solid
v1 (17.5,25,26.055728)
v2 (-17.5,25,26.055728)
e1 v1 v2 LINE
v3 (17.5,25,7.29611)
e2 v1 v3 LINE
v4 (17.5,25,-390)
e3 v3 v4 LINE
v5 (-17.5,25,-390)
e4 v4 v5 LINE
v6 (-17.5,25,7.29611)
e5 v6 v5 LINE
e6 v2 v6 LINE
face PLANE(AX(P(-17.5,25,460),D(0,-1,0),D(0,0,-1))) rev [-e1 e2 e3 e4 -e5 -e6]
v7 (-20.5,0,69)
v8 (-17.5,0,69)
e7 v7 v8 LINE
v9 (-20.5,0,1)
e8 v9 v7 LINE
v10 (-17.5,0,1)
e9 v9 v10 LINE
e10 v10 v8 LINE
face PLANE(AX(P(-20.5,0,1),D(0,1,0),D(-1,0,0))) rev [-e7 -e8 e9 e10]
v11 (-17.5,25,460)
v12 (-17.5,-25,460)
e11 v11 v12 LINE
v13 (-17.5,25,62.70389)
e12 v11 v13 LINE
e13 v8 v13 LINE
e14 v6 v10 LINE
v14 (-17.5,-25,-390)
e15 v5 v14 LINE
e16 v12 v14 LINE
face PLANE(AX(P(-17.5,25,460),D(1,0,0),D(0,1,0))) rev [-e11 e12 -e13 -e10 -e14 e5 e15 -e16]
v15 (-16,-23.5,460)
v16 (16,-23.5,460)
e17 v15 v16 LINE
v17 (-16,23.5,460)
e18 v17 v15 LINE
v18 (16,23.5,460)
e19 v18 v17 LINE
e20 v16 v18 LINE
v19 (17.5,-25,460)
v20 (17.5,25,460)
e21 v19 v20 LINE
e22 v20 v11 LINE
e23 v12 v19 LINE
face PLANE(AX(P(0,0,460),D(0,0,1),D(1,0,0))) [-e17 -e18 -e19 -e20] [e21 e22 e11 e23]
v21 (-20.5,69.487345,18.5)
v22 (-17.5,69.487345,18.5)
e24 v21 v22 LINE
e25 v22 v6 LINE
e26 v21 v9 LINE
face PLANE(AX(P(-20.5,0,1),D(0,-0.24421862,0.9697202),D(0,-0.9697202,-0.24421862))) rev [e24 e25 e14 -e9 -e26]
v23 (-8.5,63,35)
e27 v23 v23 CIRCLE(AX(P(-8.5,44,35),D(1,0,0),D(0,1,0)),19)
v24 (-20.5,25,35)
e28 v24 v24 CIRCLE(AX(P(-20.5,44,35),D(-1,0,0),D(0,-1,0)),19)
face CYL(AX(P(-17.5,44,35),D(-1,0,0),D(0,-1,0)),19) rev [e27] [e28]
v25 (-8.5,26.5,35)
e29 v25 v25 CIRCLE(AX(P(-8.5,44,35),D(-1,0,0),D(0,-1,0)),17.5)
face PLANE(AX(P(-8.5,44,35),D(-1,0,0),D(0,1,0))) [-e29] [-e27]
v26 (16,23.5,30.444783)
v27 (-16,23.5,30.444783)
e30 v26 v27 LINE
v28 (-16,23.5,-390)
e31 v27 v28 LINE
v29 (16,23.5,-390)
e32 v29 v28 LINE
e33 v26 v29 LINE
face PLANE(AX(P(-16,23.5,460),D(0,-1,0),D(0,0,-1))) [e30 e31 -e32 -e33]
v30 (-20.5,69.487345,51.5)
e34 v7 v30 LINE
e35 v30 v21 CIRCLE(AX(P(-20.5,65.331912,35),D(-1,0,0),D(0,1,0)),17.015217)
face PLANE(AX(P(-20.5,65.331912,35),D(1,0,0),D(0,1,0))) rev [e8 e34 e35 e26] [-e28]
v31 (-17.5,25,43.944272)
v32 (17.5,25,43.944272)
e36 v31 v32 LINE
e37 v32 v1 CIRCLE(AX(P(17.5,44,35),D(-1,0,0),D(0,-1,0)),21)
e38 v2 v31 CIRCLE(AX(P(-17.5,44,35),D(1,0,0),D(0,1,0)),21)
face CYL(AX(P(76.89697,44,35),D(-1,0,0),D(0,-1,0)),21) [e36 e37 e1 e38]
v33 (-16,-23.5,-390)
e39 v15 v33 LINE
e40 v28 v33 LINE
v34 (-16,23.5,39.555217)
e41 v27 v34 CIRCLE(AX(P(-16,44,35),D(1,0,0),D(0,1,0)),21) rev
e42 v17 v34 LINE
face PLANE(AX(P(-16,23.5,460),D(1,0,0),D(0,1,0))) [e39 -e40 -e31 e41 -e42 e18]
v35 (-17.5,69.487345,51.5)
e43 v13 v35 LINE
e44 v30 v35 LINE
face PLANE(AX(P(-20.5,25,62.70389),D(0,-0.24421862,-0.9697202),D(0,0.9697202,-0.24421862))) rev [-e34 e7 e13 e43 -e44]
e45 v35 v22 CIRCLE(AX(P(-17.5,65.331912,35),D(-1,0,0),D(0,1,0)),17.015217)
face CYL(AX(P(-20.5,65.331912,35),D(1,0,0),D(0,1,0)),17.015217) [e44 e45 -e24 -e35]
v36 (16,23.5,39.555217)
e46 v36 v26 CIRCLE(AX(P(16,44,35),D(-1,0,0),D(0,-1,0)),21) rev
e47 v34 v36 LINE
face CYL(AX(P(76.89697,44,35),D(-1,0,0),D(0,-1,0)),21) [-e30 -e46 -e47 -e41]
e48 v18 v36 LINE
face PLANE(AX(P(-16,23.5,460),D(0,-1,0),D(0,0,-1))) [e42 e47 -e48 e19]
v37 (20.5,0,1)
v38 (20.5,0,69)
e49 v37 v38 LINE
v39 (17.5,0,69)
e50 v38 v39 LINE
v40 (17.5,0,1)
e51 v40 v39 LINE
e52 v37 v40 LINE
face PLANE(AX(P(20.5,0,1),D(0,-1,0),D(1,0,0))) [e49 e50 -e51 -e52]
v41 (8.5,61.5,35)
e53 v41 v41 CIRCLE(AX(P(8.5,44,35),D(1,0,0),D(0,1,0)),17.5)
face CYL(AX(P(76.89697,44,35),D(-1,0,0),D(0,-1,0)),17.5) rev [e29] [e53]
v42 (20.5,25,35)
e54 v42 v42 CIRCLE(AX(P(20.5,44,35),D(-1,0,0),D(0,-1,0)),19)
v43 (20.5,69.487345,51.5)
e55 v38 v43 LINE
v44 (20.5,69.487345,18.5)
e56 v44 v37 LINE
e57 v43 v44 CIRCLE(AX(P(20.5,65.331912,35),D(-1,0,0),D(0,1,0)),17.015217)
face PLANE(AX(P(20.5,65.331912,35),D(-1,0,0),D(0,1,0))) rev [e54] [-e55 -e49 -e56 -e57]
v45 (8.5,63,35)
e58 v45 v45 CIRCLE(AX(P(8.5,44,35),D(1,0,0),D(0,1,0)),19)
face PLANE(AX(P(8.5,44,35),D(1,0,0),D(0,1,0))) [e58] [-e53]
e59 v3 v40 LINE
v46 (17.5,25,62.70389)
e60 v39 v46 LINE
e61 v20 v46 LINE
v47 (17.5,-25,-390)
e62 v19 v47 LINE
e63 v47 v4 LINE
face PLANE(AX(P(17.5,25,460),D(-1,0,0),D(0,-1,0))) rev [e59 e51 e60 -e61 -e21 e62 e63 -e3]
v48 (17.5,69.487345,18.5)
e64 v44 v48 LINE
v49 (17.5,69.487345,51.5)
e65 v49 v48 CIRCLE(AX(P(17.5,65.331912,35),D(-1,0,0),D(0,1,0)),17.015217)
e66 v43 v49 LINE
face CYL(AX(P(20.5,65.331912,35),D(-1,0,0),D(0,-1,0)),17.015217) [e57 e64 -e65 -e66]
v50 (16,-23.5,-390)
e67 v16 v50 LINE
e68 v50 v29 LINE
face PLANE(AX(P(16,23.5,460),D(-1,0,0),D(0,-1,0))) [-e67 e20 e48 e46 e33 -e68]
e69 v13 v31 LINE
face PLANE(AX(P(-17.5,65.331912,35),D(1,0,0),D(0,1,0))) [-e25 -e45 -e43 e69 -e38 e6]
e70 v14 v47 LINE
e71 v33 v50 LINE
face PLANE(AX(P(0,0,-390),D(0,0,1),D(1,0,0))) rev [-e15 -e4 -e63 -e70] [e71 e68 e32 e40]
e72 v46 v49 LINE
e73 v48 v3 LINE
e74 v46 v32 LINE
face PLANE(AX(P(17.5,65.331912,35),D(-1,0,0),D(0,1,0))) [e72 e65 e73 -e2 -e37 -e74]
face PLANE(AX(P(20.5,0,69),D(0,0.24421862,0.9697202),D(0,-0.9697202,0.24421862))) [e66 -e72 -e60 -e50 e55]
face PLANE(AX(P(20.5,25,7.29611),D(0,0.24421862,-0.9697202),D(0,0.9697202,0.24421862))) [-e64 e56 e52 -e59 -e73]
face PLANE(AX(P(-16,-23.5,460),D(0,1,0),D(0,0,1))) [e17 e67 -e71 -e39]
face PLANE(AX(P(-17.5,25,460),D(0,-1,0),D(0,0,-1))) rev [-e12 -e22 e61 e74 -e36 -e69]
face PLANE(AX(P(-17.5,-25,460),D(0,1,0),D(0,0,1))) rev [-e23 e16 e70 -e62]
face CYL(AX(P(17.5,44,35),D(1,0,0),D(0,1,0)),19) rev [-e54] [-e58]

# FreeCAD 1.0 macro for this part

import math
import FreeCAD as App
import Part
import Sketcher
Q = App.Units.Quantity


def add_polygon(sketch, points):
    """Adds a closed chain of lines whose ends are joined by coincident constraints."""
    first, n = sketch.GeometryCount, len(points)
    for a, b in zip(points, points[1:] + points[:1]):
        sketch.addGeometry(Part.LineSegment(App.Vector(*a, 0), App.Vector(*b, 0)), False)
    for i in range(n):
        sketch.addConstraint(Sketcher.Constraint("Coincident", first + i, 2, first + (i + 1) % n, 1))

doc = App.newDocument("Part")
body = doc.addObject("PartDesign::Body", "Body")

sketch1 = body.newObject("Sketcher::SketchObject", "Sketch")
sketch1.AttachmentSupport = (doc.getObject("XY_Plane"), [""])
sketch1.MapMode = "FlatFace"
add_polygon(sketch1, [(-18, 25), (-18, -25), (18, -25), (18, 25)])
add_polygon(sketch1, [(16, -24), (-16, -24), (-16, 24), (16, 24)])
sketch1.addConstraint([
    Sketcher.Constraint("Vertical", 0),
    Sketcher.Constraint("Horizontal", 1),
    Sketcher.Constraint("Vertical", 2),
    Sketcher.Constraint("Horizontal", 3),
    Sketcher.Constraint("Horizontal", 4),
    Sketcher.Constraint("Vertical", 5),
    Sketcher.Constraint("Horizontal", 6),
    Sketcher.Constraint("Vertical", 7),
    Sketcher.Constraint("Symmetric", 0, 2, 2, 2, -1, 1),
    Sketcher.Constraint("Symmetric", 4, 2, 6, 2, -1, 1),
    Sketcher.Constraint("DistanceX", 1, 1, 1, 2, Q("35 mm")),
    Sketcher.Constraint("DistanceX", 4, 2, 4, 1, Q("32 mm")),
    Sketcher.Constraint("DistanceY", 0, 2, 0, 1, Q("50 mm")),
    Sketcher.Constraint("DistanceY", 5, 1, 5, 2, Q("47 mm")),
])
pad1 = body.newObject("PartDesign::Pad", "Pad")
pad1.Profile = sketch1
pad1.Length = 460

sketch2 = body.newObject("Sketcher::SketchObject", "Sketch001")
sketch2.AttachmentSupport = (doc.getObject("YZ_Plane"), [""])
sketch2.MapMode = "FlatFace"
sketch2.AttachmentOffset = App.Placement(App.Vector(0, 0, -17.5), App.Rotation())
sketch2.addGeometry([
    Part.LineSegment(App.Vector(25, 7.29611, 0), App.Vector(0, 1, 0)),
    Part.LineSegment(App.Vector(0, 1, 0), App.Vector(0, 69, 0)),
    Part.LineSegment(App.Vector(0, 69, 0), App.Vector(25, 62.70389, 0)),
    Part.LineSegment(App.Vector(25, 62.70389, 0), App.Vector(69.487345, 51.5, 0)),
    Part.ArcOfCircle(Part.Circle(App.Vector(65.331912, 35, 0), App.Vector(0, 0, 1), 17.015217), math.radians(-75.864339), math.radians(75.864339)),
    Part.LineSegment(App.Vector(69.487345, 18.5, 0), App.Vector(25, 7.29611, 0)),
], False)
sketch2.addConstraint([
    Sketcher.Constraint("Coincident", 0, 2, 1, 1),
    Sketcher.Constraint("Coincident", 1, 2, 2, 1),
    Sketcher.Constraint("Coincident", 2, 2, 3, 1),
    Sketcher.Constraint("Coincident", 3, 2, 4, 2),
    Sketcher.Constraint("Coincident", 4, 1, 5, 1),
    Sketcher.Constraint("Coincident", 5, 2, 0, 1),
    Sketcher.Constraint("Vertical", 1),
    Sketcher.Constraint("PointOnObject", 0, 2, -2),
    Sketcher.Constraint("DistanceY", 1, 1, 1, 2, Q("68 mm")),
    Sketcher.Constraint("DistanceY", -1, 1, 4, 3, Q("35 mm")),
    Sketcher.Constraint("DistanceY", -1, 1, 0, 2, Q("1 mm")),
    Sketcher.Constraint("DistanceX", -1, 1, 2, 2, Q("25 mm")),
    Sketcher.Constraint("DistanceX", -1, 1, 5, 2, Q("25 mm")),
    Sketcher.Constraint("DistanceY", 4, 1, 3, 2, Q("33 mm")),
    Sketcher.Constraint("DistanceY", -1, 1, 3, 2, Q("51.5 mm")),
    Sketcher.Constraint("Radius", 4, Q("17.015217 mm")),
    Sketcher.Constraint("DistanceY", -1, 1, 2, 2, Q("62.70389 mm")),
    Sketcher.Constraint("DistanceY", -1, 1, 5, 2, Q("7.29611 mm")),
    Sketcher.Constraint("Distance", 3, Q("45.876476 mm")),
])
pad2 = body.newObject("PartDesign::Pad", "Pad001")
pad2.Profile = sketch2
pad2.Length = 3
pad2.Reversed = True

sketch3 = body.newObject("Sketcher::SketchObject", "Sketch002")
sketch3.AttachmentSupport = (doc.getObject("YZ_Plane"), [""])
sketch3.MapMode = "FlatFace"
sketch3.AttachmentOffset = App.Placement(App.Vector(0, 0, -20.5), App.Rotation())
sketch3.addGeometry(Part.Circle(App.Vector(44, 35, 0), App.Vector(0, 0, 1), 19), False)
sketch3.addConstraint([
    Sketcher.Constraint("Diameter", 0, Q("38 mm")),
    Sketcher.Constraint("DistanceX", -1, 1, 0, 3, Q("44 mm")),
    Sketcher.Constraint("DistanceY", -1, 1, 0, 3, Q("35 mm")),
])
pocket1 = body.newObject("PartDesign::Pocket", "Pocket")
pocket1.Profile = sketch3
pocket1.Length = 3
pocket1.Reversed = True
doc.recompute()

mirrored = body.newObject("PartDesign::Mirrored", "Mirrored")
mirrored.Originals = [pad2, pocket1]
mirrored.MirrorPlane = (doc.getObject("YZ_Plane"), [""])
body.Tip = mirrored

sketch4 = body.newObject("Sketcher::SketchObject", "Sketch003")
sketch4.AttachmentSupport = (doc.getObject("YZ_Plane"), [""])
sketch4.MapMode = "FlatFace"
sketch4.AttachmentOffset = App.Placement(App.Vector(0, 0, -17.5), App.Rotation())
sketch4.addGeometry([
    Part.Circle(App.Vector(44, 35, 0), App.Vector(0, 0, 1), 21),
    Part.Circle(App.Vector(44, 35, 0), App.Vector(0, 0, 1), 18),
], False)
sketch4.addConstraint([
    Sketcher.Constraint("Coincident", 1, 3, 0, 3),
    Sketcher.Constraint("Diameter", 0, Q("42 mm")),
    Sketcher.Constraint("Diameter", 1, Q("35 mm")),
    Sketcher.Constraint("DistanceX", -1, 1, 0, 3, Q("44 mm")),
    Sketcher.Constraint("DistanceY", -1, 1, 0, 3, Q("35 mm")),
])
pad3 = body.newObject("PartDesign::Pad", "Pad002")
pad3.Profile = sketch4
pad3.Length = 35

sketch5 = body.newObject("Sketcher::SketchObject", "Sketch004")
sketch5.AttachmentSupport = (doc.getObject("YZ_Plane"), [""])
sketch5.MapMode = "FlatFace"
sketch5.AttachmentOffset = App.Placement(App.Vector(0, 0, 17.5), App.Rotation())
sketch5.addGeometry(Part.Circle(App.Vector(44, 35, 0), App.Vector(0, 0, 1), 19), False)
sketch5.addConstraint([
    Sketcher.Constraint("Diameter", 0, Q("38 mm")),
    Sketcher.Constraint("DistanceX", -1, 1, 0, 3, Q("44 mm")),
    Sketcher.Constraint("DistanceY", -1, 1, 0, 3, Q("35 mm")),
])
pocket2 = body.newObject("PartDesign::Pocket", "Pocket001")
pocket2.Profile = sketch5
pocket2.Length = 9
doc.recompute()

mirrored2 = body.newObject("PartDesign::Mirrored", "Mirrored001")
mirrored2.Originals = [pocket2]
mirrored2.MirrorPlane = (doc.getObject("YZ_Plane"), [""])
body.Tip = mirrored2

sketch6 = body.newObject("Sketcher::SketchObject", "Sketch005")
sketch6.AttachmentSupport = (doc.getObject("XY_Plane"), [""])
sketch6.MapMode = "FlatFace"
add_polygon(sketch6, [(-18, 25), (-18, -25), (18, -25), (18, 25)])
add_polygon(sketch6, [(16, -24), (-16, -24), (-16, 24), (16, 24)])
sketch6.addConstraint([
    Sketcher.Constraint("Vertical", 0),
    Sketcher.Constraint("Horizontal", 1),
    Sketcher.Constraint("Vertical", 2),
    Sketcher.Constraint("Horizontal", 3),
    Sketcher.Constraint("Horizontal", 4),
    Sketcher.Constraint("Vertical", 5),
    Sketcher.Constraint("Horizontal", 6),
    Sketcher.Constraint("Vertical", 7),
    Sketcher.Constraint("Symmetric", 0, 2, 2, 2, -1, 1),
    Sketcher.Constraint("Symmetric", 4, 2, 6, 2, -1, 1),
    Sketcher.Constraint("DistanceX", 1, 1, 1, 2, Q("35 mm")),
    Sketcher.Constraint("DistanceX", 4, 2, 4, 1, Q("32 mm")),
    Sketcher.Constraint("DistanceY", 0, 2, 0, 1, Q("50 mm")),
    Sketcher.Constraint("DistanceY", 5, 1, 5, 2, Q("47 mm")),
])
pad4 = body.newObject("PartDesign::Pad", "Pad003")
pad4.Profile = sketch6
pad4.Length = 390
pad4.Reversed = True

doc.recompute()
